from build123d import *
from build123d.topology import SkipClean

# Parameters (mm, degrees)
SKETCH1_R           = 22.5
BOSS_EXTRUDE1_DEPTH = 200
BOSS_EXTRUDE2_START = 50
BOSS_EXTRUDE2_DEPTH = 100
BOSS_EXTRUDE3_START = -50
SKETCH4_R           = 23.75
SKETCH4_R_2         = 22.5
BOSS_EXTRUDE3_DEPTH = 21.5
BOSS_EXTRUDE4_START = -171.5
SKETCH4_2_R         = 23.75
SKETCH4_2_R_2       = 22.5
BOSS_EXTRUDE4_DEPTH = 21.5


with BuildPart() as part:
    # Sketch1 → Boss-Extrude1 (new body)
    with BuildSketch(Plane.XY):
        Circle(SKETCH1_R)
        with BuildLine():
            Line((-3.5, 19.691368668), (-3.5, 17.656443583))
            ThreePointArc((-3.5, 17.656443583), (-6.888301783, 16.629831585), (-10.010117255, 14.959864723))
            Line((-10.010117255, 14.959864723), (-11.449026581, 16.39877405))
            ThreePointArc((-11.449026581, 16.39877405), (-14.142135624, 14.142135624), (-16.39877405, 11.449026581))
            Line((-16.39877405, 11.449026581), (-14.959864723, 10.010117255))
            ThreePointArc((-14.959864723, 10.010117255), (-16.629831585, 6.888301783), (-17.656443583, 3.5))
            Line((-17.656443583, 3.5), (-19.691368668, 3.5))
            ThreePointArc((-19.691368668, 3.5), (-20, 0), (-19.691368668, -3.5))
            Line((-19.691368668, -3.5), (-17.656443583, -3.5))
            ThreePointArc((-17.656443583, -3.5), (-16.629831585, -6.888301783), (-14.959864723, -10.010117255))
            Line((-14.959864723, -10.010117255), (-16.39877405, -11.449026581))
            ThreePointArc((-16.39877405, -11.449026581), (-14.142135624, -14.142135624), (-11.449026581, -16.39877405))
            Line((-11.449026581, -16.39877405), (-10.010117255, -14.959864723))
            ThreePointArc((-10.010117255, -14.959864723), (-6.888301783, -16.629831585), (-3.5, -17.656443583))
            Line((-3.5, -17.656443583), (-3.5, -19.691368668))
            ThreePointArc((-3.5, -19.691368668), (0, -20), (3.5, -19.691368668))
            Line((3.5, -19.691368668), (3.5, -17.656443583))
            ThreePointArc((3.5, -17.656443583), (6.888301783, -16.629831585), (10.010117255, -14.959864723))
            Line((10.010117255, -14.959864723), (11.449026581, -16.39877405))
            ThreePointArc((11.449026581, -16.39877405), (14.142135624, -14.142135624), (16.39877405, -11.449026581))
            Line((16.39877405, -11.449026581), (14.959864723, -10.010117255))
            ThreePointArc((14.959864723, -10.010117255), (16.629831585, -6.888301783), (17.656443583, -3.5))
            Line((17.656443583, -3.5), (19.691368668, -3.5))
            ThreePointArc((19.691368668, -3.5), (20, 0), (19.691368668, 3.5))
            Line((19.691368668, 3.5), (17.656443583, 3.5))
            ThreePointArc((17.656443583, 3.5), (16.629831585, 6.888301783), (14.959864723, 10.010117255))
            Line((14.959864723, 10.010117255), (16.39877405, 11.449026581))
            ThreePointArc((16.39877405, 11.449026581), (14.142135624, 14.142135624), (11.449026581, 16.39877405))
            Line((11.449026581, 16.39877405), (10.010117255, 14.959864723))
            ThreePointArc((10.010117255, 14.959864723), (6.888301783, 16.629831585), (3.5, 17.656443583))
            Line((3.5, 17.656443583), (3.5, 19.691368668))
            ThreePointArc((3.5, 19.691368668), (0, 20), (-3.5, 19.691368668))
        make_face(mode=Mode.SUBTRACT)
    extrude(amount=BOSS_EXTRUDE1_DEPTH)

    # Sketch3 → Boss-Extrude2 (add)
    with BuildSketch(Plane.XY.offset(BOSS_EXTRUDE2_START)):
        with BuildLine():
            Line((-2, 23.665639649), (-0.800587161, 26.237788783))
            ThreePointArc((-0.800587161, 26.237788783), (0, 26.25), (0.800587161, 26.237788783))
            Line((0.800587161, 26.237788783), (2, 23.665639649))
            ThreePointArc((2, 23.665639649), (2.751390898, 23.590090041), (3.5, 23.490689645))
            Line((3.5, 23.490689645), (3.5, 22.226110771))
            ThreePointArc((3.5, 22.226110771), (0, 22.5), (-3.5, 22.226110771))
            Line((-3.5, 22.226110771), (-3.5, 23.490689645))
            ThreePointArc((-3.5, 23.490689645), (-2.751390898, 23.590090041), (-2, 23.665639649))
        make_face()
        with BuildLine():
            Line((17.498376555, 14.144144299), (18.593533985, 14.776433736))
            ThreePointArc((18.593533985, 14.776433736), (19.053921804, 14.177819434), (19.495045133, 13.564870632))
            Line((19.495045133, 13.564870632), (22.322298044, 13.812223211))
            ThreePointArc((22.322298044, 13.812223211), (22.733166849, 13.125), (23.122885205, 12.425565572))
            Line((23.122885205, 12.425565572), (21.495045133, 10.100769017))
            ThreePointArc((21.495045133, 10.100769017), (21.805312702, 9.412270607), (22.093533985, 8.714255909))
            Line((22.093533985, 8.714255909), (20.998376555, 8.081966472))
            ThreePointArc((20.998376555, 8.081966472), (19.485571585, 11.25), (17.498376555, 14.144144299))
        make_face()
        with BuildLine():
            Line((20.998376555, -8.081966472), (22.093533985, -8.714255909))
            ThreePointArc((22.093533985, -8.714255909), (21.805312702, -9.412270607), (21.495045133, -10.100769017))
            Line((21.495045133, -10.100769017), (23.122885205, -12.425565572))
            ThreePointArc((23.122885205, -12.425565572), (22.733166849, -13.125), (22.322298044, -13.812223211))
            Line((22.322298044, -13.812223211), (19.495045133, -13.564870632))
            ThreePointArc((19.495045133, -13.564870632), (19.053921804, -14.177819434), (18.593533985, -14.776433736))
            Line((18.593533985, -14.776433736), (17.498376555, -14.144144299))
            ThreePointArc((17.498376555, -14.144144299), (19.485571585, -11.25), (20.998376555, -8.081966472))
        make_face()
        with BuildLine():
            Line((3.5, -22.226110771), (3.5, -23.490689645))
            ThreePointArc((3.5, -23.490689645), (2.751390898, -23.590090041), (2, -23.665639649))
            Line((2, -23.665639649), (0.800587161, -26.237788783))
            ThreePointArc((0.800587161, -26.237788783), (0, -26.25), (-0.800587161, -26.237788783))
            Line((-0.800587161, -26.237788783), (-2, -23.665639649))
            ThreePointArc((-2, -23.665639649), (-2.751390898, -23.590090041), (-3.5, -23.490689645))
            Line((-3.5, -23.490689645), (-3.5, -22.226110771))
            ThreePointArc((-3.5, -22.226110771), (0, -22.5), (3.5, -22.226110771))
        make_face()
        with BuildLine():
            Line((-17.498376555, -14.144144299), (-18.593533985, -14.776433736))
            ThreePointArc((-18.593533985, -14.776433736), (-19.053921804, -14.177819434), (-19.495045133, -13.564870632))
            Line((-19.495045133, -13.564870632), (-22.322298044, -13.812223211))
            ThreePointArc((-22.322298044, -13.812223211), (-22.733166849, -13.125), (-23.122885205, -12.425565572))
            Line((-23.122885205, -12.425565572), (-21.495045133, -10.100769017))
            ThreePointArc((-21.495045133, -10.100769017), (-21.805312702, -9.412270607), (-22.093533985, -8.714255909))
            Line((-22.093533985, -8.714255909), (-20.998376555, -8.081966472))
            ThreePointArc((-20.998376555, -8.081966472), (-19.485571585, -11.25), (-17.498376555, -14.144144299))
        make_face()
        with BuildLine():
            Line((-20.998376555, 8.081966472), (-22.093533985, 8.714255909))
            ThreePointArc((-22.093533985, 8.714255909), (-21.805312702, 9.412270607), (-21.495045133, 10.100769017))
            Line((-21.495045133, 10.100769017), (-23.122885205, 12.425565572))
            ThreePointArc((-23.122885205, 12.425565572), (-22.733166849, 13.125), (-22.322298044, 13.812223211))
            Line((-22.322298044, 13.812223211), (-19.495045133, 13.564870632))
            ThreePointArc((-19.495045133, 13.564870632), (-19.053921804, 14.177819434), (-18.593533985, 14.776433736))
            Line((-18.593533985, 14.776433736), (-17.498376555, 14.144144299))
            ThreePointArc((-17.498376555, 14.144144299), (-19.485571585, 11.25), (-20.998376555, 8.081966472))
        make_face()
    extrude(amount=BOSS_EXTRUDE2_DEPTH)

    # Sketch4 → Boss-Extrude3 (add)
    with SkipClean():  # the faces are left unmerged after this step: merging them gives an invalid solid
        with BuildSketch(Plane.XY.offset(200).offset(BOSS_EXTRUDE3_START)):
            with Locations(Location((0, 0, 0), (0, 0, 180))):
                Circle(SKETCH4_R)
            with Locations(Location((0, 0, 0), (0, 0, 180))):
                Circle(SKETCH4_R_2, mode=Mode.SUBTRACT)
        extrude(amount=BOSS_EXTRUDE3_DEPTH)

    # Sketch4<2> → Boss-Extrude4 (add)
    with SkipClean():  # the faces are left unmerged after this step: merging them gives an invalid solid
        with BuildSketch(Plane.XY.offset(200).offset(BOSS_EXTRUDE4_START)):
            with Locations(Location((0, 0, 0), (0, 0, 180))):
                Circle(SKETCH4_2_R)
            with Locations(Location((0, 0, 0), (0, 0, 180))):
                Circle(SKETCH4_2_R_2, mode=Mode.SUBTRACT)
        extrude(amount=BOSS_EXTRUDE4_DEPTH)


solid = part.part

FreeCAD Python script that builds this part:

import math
import FreeCAD as App
import Part
import Sketcher
Q = App.Units.Quantity

doc = App.newDocument("Part")
params = doc.addObject("Spreadsheet::Sheet", "Params")
for row, (alias, value) in enumerate([
    ("sketch1_diameter", "45 mm"),
    ("sketch1_radius", "20 mm"),
    ("sketch1_radius2", "18 mm"),
    ("pad1_length", "200 mm"),
    ("sketch2_radius", "22.5 mm"),
    ("sketch2_radius2", "23.749999 mm"),
    ("sketch2_radius3", "26.250001 mm"),
    ("pad2_length", "100 mm"),
    ("sketch3_diameter", "45 mm"),
    ("sketch3_diameter2", "47.5 mm"),
    ("pad3_length", "21.5 mm"),
    ("sketch4_diameter", "45 mm"),
    ("sketch4_diameter2", "47.5 mm"),
    ("pad4_length", "21.5 mm"),
], start=1):
    params.set(f"A{row}", alias)
    params.set(f"B{row}", "=" + value)
    params.setAlias(f"B{row}", alias)

body = doc.addObject("PartDesign::Body", "Body")

# Sketch on XY plane
sketch1 = body.newObject("Sketcher::SketchObject", "Sketch")
sketch1.AttachmentSupport = (doc.getObject("XY_Plane"), [""])
sketch1.MapMode = "FlatFace"
sketch1.addGeometry([
    Part.Circle(App.Vector(0, 0, 0), App.Vector(0, 0, 1), 22.5),  # 0
    Part.LineSegment(App.Vector(-3.5, 17.656444, 0), App.Vector(-3.5, 19.691369, 0)),  # 1
    Part.ArcOfCircle(Part.Circle(App.Vector(0, 0, 0), App.Vector(0, 0, 1), 20), math.radians(79.921342), math.radians(100.078658)),  # 2
    Part.LineSegment(App.Vector(3.5, 19.691369, 0), App.Vector(3.5, 17.656444, 0)),  # 3
    Part.ArcOfCircle(Part.Circle(App.Vector(0, 0, 0), App.Vector(0, 0, 1), 18), math.radians(56.212271), math.radians(78.787729)),  # 4
    Part.LineSegment(App.Vector(10.010117, 14.959865, 0), App.Vector(11.449027, 16.398774, 0)),  # 5
    Part.ArcOfCircle(Part.Circle(App.Vector(0, 0, 0), App.Vector(0, 0, 1), 20), math.radians(34.921342), math.radians(55.078658)),  # 6
    Part.LineSegment(App.Vector(16.398774, 11.449027, 0), App.Vector(14.959865, 10.010117, 0)),  # 7
    Part.ArcOfCircle(Part.Circle(App.Vector(0, 0, 0), App.Vector(0, 0, 1), 18), math.radians(11.212271), math.radians(33.787729)),  # 8
    Part.LineSegment(App.Vector(17.656444, 3.5, 0), App.Vector(19.691369, 3.5, 0)),  # 9
    Part.ArcOfCircle(Part.Circle(App.Vector(0, 0, 0), App.Vector(0, 0, 1), 20), math.radians(-10.078658), math.radians(10.078658)),  # 10
    Part.LineSegment(App.Vector(19.691369, -3.5, 0), App.Vector(17.656444, -3.5, 0)),  # 11
    Part.ArcOfCircle(Part.Circle(App.Vector(0, 0, 0), App.Vector(0, 0, 1), 18), math.radians(-33.787729), math.radians(-11.212271)),  # 12
    Part.LineSegment(App.Vector(14.959865, -10.010117, 0), App.Vector(16.398774, -11.449027, 0)),  # 13
    Part.ArcOfCircle(Part.Circle(App.Vector(0, 0, 0), App.Vector(0, 0, 1), 20), math.radians(-55.078658), math.radians(-34.921342)),  # 14
    Part.LineSegment(App.Vector(11.449027, -16.398774, 0), App.Vector(10.010117, -14.959865, 0)),  # 15
    Part.ArcOfCircle(Part.Circle(App.Vector(0, 0, 0), App.Vector(0, 0, 1), 18), math.radians(-78.787729), math.radians(-56.212271)),  # 16
    Part.LineSegment(App.Vector(3.5, -17.656444, 0), App.Vector(3.5, -19.691369, 0)),  # 17
    Part.ArcOfCircle(Part.Circle(App.Vector(0, 0, 0), App.Vector(0, 0, 1), 20), math.radians(-100.078658), math.radians(-79.921342)),  # 18
    Part.LineSegment(App.Vector(-3.5, -19.691369, 0), App.Vector(-3.5, -17.656444, 0)),  # 19
    Part.ArcOfCircle(Part.Circle(App.Vector(0, 0, 0), App.Vector(0, 0, 1), 18), math.radians(-123.787729), math.radians(-101.212271)),  # 20
    Part.LineSegment(App.Vector(-10.010117, -14.959865, 0), App.Vector(-11.449027, -16.398774, 0)),  # 21
    Part.ArcOfCircle(Part.Circle(App.Vector(0, 0, 0), App.Vector(0, 0, 1), 20), math.radians(-145.078658), math.radians(-124.921342)),  # 22
    Part.LineSegment(App.Vector(-16.398774, -11.449027, 0), App.Vector(-14.959865, -10.010117, 0)),  # 23
    Part.ArcOfCircle(Part.Circle(App.Vector(0, 0, 0), App.Vector(0, 0, 1), 18), math.radians(-168.787729), math.radians(-146.212271)),  # 24
    Part.LineSegment(App.Vector(-17.656444, -3.5, 0), App.Vector(-19.691369, -3.5, 0)),  # 25
    Part.ArcOfCircle(Part.Circle(App.Vector(0, 0, 0), App.Vector(0, 0, 1), 20), math.radians(169.921342), math.radians(190.078658)),  # 26
    Part.LineSegment(App.Vector(-19.691369, 3.5, 0), App.Vector(-17.656444, 3.5, 0)),  # 27
    Part.ArcOfCircle(Part.Circle(App.Vector(0, 0, 0), App.Vector(0, 0, 1), 18), math.radians(146.212271), math.radians(168.787729)),  # 28
    Part.LineSegment(App.Vector(-14.959865, 10.010117, 0), App.Vector(-16.398774, 11.449027, 0)),  # 29
    Part.ArcOfCircle(Part.Circle(App.Vector(0, 0, 0), App.Vector(0, 0, 1), 20), math.radians(124.921342), math.radians(145.078658)),  # 30
    Part.LineSegment(App.Vector(-11.449027, 16.398774, 0), App.Vector(-10.010117, 14.959865, 0)),  # 31
    Part.ArcOfCircle(Part.Circle(App.Vector(0, 0, 0), App.Vector(0, 0, 1), 18), math.radians(101.212271), math.radians(123.787729)),  # 32
], False)
sketch1.addConstraint([
    Sketcher.Constraint("Coincident", 1, 2, 2, 2),
    Sketcher.Constraint("Coincident", 2, 1, 3, 1),
    Sketcher.Constraint("Coincident", 3, 2, 4, 2),
    Sketcher.Constraint("Coincident", 4, 1, 5, 1),
    Sketcher.Constraint("Coincident", 5, 2, 6, 2),
    Sketcher.Constraint("Coincident", 6, 1, 7, 1),
    Sketcher.Constraint("Coincident", 7, 2, 8, 2),
    Sketcher.Constraint("Coincident", 8, 1, 9, 1),
    Sketcher.Constraint("Coincident", 9, 2, 10, 2),
    Sketcher.Constraint("Coincident", 10, 1, 11, 1),
    Sketcher.Constraint("Coincident", 11, 2, 12, 2),
    Sketcher.Constraint("Coincident", 12, 1, 13, 1),
    Sketcher.Constraint("Coincident", 13, 2, 14, 2),
    Sketcher.Constraint("Coincident", 14, 1, 15, 1),
    Sketcher.Constraint("Coincident", 15, 2, 16, 2),
    Sketcher.Constraint("Coincident", 16, 1, 17, 1),
    Sketcher.Constraint("Coincident", 17, 2, 18, 2),
    Sketcher.Constraint("Coincident", 18, 1, 19, 1),
    Sketcher.Constraint("Coincident", 19, 2, 20, 2),
    Sketcher.Constraint("Coincident", 20, 1, 21, 1),
    Sketcher.Constraint("Coincident", 21, 2, 22, 2),
    Sketcher.Constraint("Coincident", 22, 1, 23, 1),
    Sketcher.Constraint("Coincident", 23, 2, 24, 2),
    Sketcher.Constraint("Coincident", 24, 1, 25, 1),
    Sketcher.Constraint("Coincident", 25, 2, 26, 2),
    Sketcher.Constraint("Coincident", 26, 1, 27, 1),
    Sketcher.Constraint("Coincident", 27, 2, 28, 2),
    Sketcher.Constraint("Coincident", 28, 1, 29, 1),
    Sketcher.Constraint("Coincident", 29, 2, 30, 2),
    Sketcher.Constraint("Coincident", 30, 1, 31, 1),
    Sketcher.Constraint("Coincident", 31, 2, 32, 2),
    Sketcher.Constraint("Coincident", 32, 1, 1, 1),
    Sketcher.Constraint("Vertical", 1),
    Sketcher.Constraint("Vertical", 3),
    Sketcher.Constraint("Horizontal", 9),
    Sketcher.Constraint("Horizontal", 11),
    Sketcher.Constraint("Vertical", 17),
    Sketcher.Constraint("Vertical", 19),
    Sketcher.Constraint("Horizontal", 25),
    Sketcher.Constraint("Horizontal", 27),
    Sketcher.Constraint("Coincident", 0, 3, -1, 1),
    Sketcher.Constraint("Coincident", 2, 3, -1, 1),
    Sketcher.Constraint("Coincident", 4, 3, -1, 1),
    Sketcher.Constraint("Coincident", 6, 3, -1, 1),
    Sketcher.Constraint("Coincident", 8, 3, -1, 1),
    Sketcher.Constraint("Coincident", 10, 3, -1, 1),
    Sketcher.Constraint("Coincident", 12, 3, -1, 1),
    Sketcher.Constraint("Coincident", 14, 3, -1, 1),
    Sketcher.Constraint("Coincident", 16, 3, -1, 1),
    Sketcher.Constraint("Coincident", 18, 3, -1, 1),
    Sketcher.Constraint("Coincident", 20, 3, -1, 1),
    Sketcher.Constraint("Coincident", 22, 3, -1, 1),
    Sketcher.Constraint("Coincident", 24, 3, -1, 1),
    Sketcher.Constraint("Coincident", 26, 3, -1, 1),
    Sketcher.Constraint("Coincident", 28, 3, -1, 1),
    Sketcher.Constraint("Coincident", 30, 3, -1, 1),
    Sketcher.Constraint("Coincident", 32, 3, -1, 1),
    Sketcher.Constraint("Equal", 2, 6),
    Sketcher.Constraint("Equal", 4, 8),
    Sketcher.Constraint("Equal", 6, 10),
    Sketcher.Constraint("Equal", 8, 12),
    Sketcher.Constraint("Equal", 10, 14),
    Sketcher.Constraint("Equal", 12, 16),
    Sketcher.Constraint("Equal", 14, 18),
    Sketcher.Constraint("Equal", 16, 20),
    Sketcher.Constraint("Equal", 18, 22),
    Sketcher.Constraint("Equal", 20, 24),
    Sketcher.Constraint("Equal", 22, 26),
    Sketcher.Constraint("Equal", 24, 28),
    Sketcher.Constraint("Equal", 26, 30),
    Sketcher.Constraint("Equal", 28, 32),
    Sketcher.Constraint("Parallel", 5, 7),
    Sketcher.Constraint("Perpendicular", 7, 13),
    Sketcher.Constraint("Parallel", 13, 15),
    Sketcher.Constraint("Perpendicular", 15, 21),
    Sketcher.Constraint("Parallel", 21, 23),
    Sketcher.Constraint("Perpendicular", 23, 29),
    Sketcher.Constraint("Parallel", 29, 31),
    Sketcher.Constraint("Horizontal", 1, 2, 2, 1),
    Sketcher.Constraint("Horizontal", 17, 2, 18, 1),
    Sketcher.Constraint("Horizontal", 15, 2, 20, 1),
    Sketcher.Constraint("Horizontal", 14, 1, 21, 2),
    Sketcher.Constraint("Horizontal", 13, 2, 22, 1),
    Sketcher.Constraint("Horizontal", 11, 2, 24, 1),
    Sketcher.Constraint("Horizontal", 9, 2, 26, 1),
    Sketcher.Constraint("Horizontal", 7, 2, 28, 1),
    Sketcher.Constraint("Horizontal", 5, 2, 30, 1),
    Sketcher.Constraint("Vertical", 9, 2, 10, 1),
    Sketcher.Constraint("Vertical", 7, 2, 12, 1),
    Sketcher.Constraint("Vertical", 5, 2, 14, 1),
    Sketcher.Constraint("Vertical", 3, 2, 16, 1),
    Sketcher.Constraint("Equal", 27, 1),
    Sketcher.Constraint("Equal", 5, 7),
    Sketcher.Constraint("Diameter", 0, 45.0),
    Sketcher.Constraint("Radius", 2, 20.0),
    Sketcher.Constraint("Radius", 4, 18.0),
    Sketcher.Constraint("DistanceX", 1, 2, 2, 1, 7.0),
    Sketcher.Constraint("DistanceY", 4, 1, 3, 2, 2.696579),
])
sketch1.setExpression("Constraints[93]", "Params.sketch1_diameter")
sketch1.setExpression("Constraints[94]", "Params.sketch1_radius")
sketch1.setExpression("Constraints[95]", "Params.sketch1_radius2")
pad1 = body.newObject("PartDesign::Pad", "Pad")
pad1.Profile = sketch1
pad1.setExpression("Length", "Params.pad1_length")

# Sketch on XY plane
sketch2 = body.newObject("Sketcher::SketchObject", "Sketch001")
sketch2.AttachmentSupport = (doc.getObject("XY_Plane"), [""])
sketch2.MapMode = "FlatFace"
sketch2.AttachmentOffset = App.Placement(App.Vector(0, 0, 50), App.Rotation())
sketch2.addGeometry([
    Part.LineSegment(App.Vector(-0.800587, 26.237789, 0), App.Vector(-2, 23.66564, 0)),  # 0
    Part.ArcOfCircle(Part.Circle(App.Vector(0, 0.000001, 0), App.Vector(0, 0, 1), 23.749999), math.radians(94.830629), math.radians(98.474453)),  # 1
    Part.LineSegment(App.Vector(-3.5, 23.49069, 0), App.Vector(-3.5, 22.226111, 0)),  # 2
    Part.ArcOfCircle(Part.Circle(App.Vector(0, 0, 0), App.Vector(0, 0, 1), 22.5), math.radians(81.050982), math.radians(98.949018)),  # 3
    Part.LineSegment(App.Vector(3.5, 22.226111, 0), App.Vector(3.5, 23.49069, 0)),  # 4
    Part.ArcOfCircle(Part.Circle(App.Vector(0, 0.000001, 0), App.Vector(0, 0, 1), 23.749999), math.radians(81.525547), math.radians(85.169371)),  # 5
    Part.LineSegment(App.Vector(2, 23.66564, 0), App.Vector(0.800587, 26.237789, 0)),  # 6
    Part.ArcOfCircle(Part.Circle(App.Vector(0, -0.000001, 0), App.Vector(0, 0, 1), 26.250001), math.radians(88.25229), math.radians(91.74771)),  # 7
    Part.LineSegment(App.Vector(18.593534, 14.776434, 0), App.Vector(17.498377, 14.144144, 0)),  # 8
    Part.ArcOfCircle(Part.Circle(App.Vector(0, 0, 0), App.Vector(0, 0, 1), 22.5), math.radians(21.050982), math.radians(38.949018)),  # 9
    Part.LineSegment(App.Vector(20.998377, 8.081966, 0), App.Vector(22.093534, 8.714256, 0)),  # 10
    Part.ArcOfCircle(Part.Circle(App.Vector(0, 0, 0), App.Vector(0, 0, 1), 23.749999), math.radians(21.525547), math.radians(25.169371)),  # 11
    Part.LineSegment(App.Vector(21.495045, 10.100769, 0), App.Vector(23.122885, 12.425566, 0)),  # 12
    Part.ArcOfCircle(Part.Circle(App.Vector(0, 0, 0), App.Vector(0, 0, 1), 26.25), math.radians(28.25229), math.radians(31.74771)),  # 13
    Part.LineSegment(App.Vector(22.322298, 13.812223, 0), App.Vector(19.495045, 13.564871, 0)),  # 14
    Part.ArcOfCircle(Part.Circle(App.Vector(0, 0, 0), App.Vector(0, 0, 1), 23.749999), math.radians(34.830629), math.radians(38.474453)),  # 15
    Part.LineSegment(App.Vector(22.093534, -8.714256, 0), App.Vector(20.998377, -8.081966, 0)),  # 16
    Part.ArcOfCircle(Part.Circle(App.Vector(0, 0, 0), App.Vector(0, 0, 1), 22.5), math.radians(-38.949018), math.radians(-21.050982)),  # 17
    Part.LineSegment(App.Vector(17.498377, -14.144144, 0), App.Vector(18.593534, -14.776434, 0)),  # 18
    Part.ArcOfCircle(Part.Circle(App.Vector(0, 0, 0), App.Vector(0, 0, 1), 23.749999), math.radians(-38.474453), math.radians(-34.830629)),  # 19
    Part.LineSegment(App.Vector(19.495045, -13.564871, 0), App.Vector(22.322298, -13.812223, 0)),  # 20
    Part.ArcOfCircle(Part.Circle(App.Vector(0, 0, 0), App.Vector(0, 0, 1), 26.25), math.radians(-31.74771), math.radians(-28.25229)),  # 21
    Part.LineSegment(App.Vector(23.122885, -12.425566, 0), App.Vector(21.495045, -10.100769, 0)),  # 22
    Part.ArcOfCircle(Part.Circle(App.Vector(0, 0, 0), App.Vector(0, 0, 1), 23.749999), math.radians(-25.169371), math.radians(-21.525547)),  # 23
    Part.LineSegment(App.Vector(3.5, -23.49069, 0), App.Vector(3.5, -22.226111, 0)),  # 24
    Part.ArcOfCircle(Part.Circle(App.Vector(0, 0, 0), App.Vector(0, 0, 1), 22.5), math.radians(-98.949018), math.radians(-81.050982)),  # 25
    Part.LineSegment(App.Vector(-3.5, -22.226111, 0), App.Vector(-3.5, -23.49069, 0)),  # 26
    Part.ArcOfCircle(Part.Circle(App.Vector(0, -0.000001, 0), App.Vector(0, 0, 1), 23.749999), math.radians(-98.474453), math.radians(-94.830629)),  # 27
    Part.LineSegment(App.Vector(-2, -23.66564, 0), App.Vector(-0.800587, -26.237789, 0)),  # 28
    Part.ArcOfCircle(Part.Circle(App.Vector(0, 0.000001, 0), App.Vector(0, 0, 1), 26.250001), math.radians(-91.74771), math.radians(-88.25229)),  # 29
    Part.LineSegment(App.Vector(0.800587, -26.237789, 0), App.Vector(2, -23.66564, 0)),  # 30
    Part.ArcOfCircle(Part.Circle(App.Vector(0, -0.000001, 0), App.Vector(0, 0, 1), 23.749999), math.radians(-85.169371), math.radians(-81.525547)),  # 31
    Part.LineSegment(App.Vector(-18.593534, -14.776434, 0), App.Vector(-17.498377, -14.144144, 0)),  # 32
    Part.ArcOfCircle(Part.Circle(App.Vector(0, 0, 0), App.Vector(0, 0, 1), 22.5), math.radians(-158.949018), math.radians(-141.050982)),  # 33
    Part.LineSegment(App.Vector(-20.998377, -8.081966, 0), App.Vector(-22.093534, -8.714256, 0)),  # 34
    Part.ArcOfCircle(Part.Circle(App.Vector(0, 0, 0), App.Vector(0, 0, 1), 23.749999), math.radians(-158.474453), math.radians(-154.830629)),  # 35
    Part.LineSegment(App.Vector(-21.495045, -10.100769, 0), App.Vector(-23.122885, -12.425566, 0)),  # 36
    Part.ArcOfCircle(Part.Circle(App.Vector(0, 0, 0), App.Vector(0, 0, 1), 26.25), math.radians(-151.74771), math.radians(-148.25229)),  # 37
    Part.LineSegment(App.Vector(-22.322298, -13.812223, 0), App.Vector(-19.495045, -13.564871, 0)),  # 38
    Part.ArcOfCircle(Part.Circle(App.Vector(0, 0, 0), App.Vector(0, 0, 1), 23.749999), math.radians(-145.169371), math.radians(-141.525547)),  # 39
    Part.LineSegment(App.Vector(-22.093534, 8.714256, 0), App.Vector(-20.998377, 8.081966, 0)),  # 40
    Part.ArcOfCircle(Part.Circle(App.Vector(0, 0, 0), App.Vector(0, 0, 1), 22.5), math.radians(141.050982), math.radians(158.949018)),  # 41
    Part.LineSegment(App.Vector(-17.498377, 14.144144, 0), App.Vector(-18.593534, 14.776434, 0)),  # 42
    Part.ArcOfCircle(Part.Circle(App.Vector(0, 0, 0), App.Vector(0, 0, 1), 23.749999), math.radians(141.525547), math.radians(145.169371)),  # 43
    Part.LineSegment(App.Vector(-19.495045, 13.564871, 0), App.Vector(-22.322298, 13.812223, 0)),  # 44
    Part.ArcOfCircle(Part.Circle(App.Vector(0, 0, 0), App.Vector(0, 0, 1), 26.25), math.radians(148.25229), math.radians(151.74771)),  # 45
    Part.LineSegment(App.Vector(-23.122885, 12.425566, 0), App.Vector(-21.495045, 10.100769, 0)),  # 46
    Part.ArcOfCircle(Part.Circle(App.Vector(0, 0, 0), App.Vector(0, 0, 1), 23.749999), math.radians(154.830629), math.radians(158.474453)),  # 47
], False)
sketch2.addConstraint([
    Sketcher.Constraint("Coincident", 0, 2, 1, 1),
    Sketcher.Constraint("Coincident", 1, 2, 2, 1),
    Sketcher.Constraint("Coincident", 2, 2, 3, 2),
    Sketcher.Constraint("Coincident", 3, 1, 4, 1),
    Sketcher.Constraint("Coincident", 4, 2, 5, 1),
    Sketcher.Constraint("Coincident", 5, 2, 6, 1),
    Sketcher.Constraint("Coincident", 6, 2, 7, 1),
    Sketcher.Constraint("Coincident", 7, 2, 0, 1),
    Sketcher.Constraint("Coincident", 8, 2, 9, 2),
    Sketcher.Constraint("Coincident", 9, 1, 10, 1),
    Sketcher.Constraint("Coincident", 10, 2, 11, 1),
    Sketcher.Constraint("Coincident", 11, 2, 12, 1),
    Sketcher.Constraint("Coincident", 12, 2, 13, 1),
    Sketcher.Constraint("Coincident", 13, 2, 14, 1),
    Sketcher.Constraint("Coincident", 14, 2, 15, 1),
    Sketcher.Constraint("Coincident", 15, 2, 8, 1),
    Sketcher.Constraint("Coincident", 16, 2, 17, 2),
    Sketcher.Constraint("Coincident", 17, 1, 18, 1),
    Sketcher.Constraint("Coincident", 18, 2, 19, 1),
    Sketcher.Constraint("Coincident", 19, 2, 20, 1),
    Sketcher.Constraint("Coincident", 20, 2, 21, 1),
    Sketcher.Constraint("Coincident", 21, 2, 22, 1),
    Sketcher.Constraint("Coincident", 22, 2, 23, 1),
    Sketcher.Constraint("Coincident", 23, 2, 16, 1),
    Sketcher.Constraint("Coincident", 24, 2, 25, 2),
    Sketcher.Constraint("Coincident", 25, 1, 26, 1),
    Sketcher.Constraint("Coincident", 26, 2, 27, 1),
    Sketcher.Constraint("Coincident", 27, 2, 28, 1),
    Sketcher.Constraint("Coincident", 28, 2, 29, 1),
    Sketcher.Constraint("Coincident", 29, 2, 30, 1),
    Sketcher.Constraint("Coincident", 30, 2, 31, 1),
    Sketcher.Constraint("Coincident", 31, 2, 24, 1),
    Sketcher.Constraint("Coincident", 32, 2, 33, 2),
    Sketcher.Constraint("Coincident", 33, 1, 34, 1),
    Sketcher.Constraint("Coincident", 34, 2, 35, 1),
    Sketcher.Constraint("Coincident", 35, 2, 36, 1),
    Sketcher.Constraint("Coincident", 36, 2, 37, 1),
    Sketcher.Constraint("Coincident", 37, 2, 38, 1),
    Sketcher.Constraint("Coincident", 38, 2, 39, 1),
    Sketcher.Constraint("Coincident", 39, 2, 32, 1),
    Sketcher.Constraint("Coincident", 40, 2, 41, 2),
    Sketcher.Constraint("Coincident", 41, 1, 42, 1),
    Sketcher.Constraint("Coincident", 42, 2, 43, 1),
    Sketcher.Constraint("Coincident", 43, 2, 44, 1),
    Sketcher.Constraint("Coincident", 44, 2, 45, 1),
    Sketcher.Constraint("Coincident", 45, 2, 46, 1),
    Sketcher.Constraint("Coincident", 46, 2, 47, 1),
    Sketcher.Constraint("Coincident", 47, 2, 40, 1),
    Sketcher.Constraint("Vertical", 2),
    Sketcher.Constraint("Vertical", 4),
    Sketcher.Constraint("Vertical", 24),
    Sketcher.Constraint("Vertical", 26),
    Sketcher.Constraint("Coincident", 1, 3, -1, 1),
    Sketcher.Constraint("Coincident", 3, 3, -1, 1),
    Sketcher.Constraint("Coincident", 5, 3, -1, 1),
    Sketcher.Constraint("Coincident", 7, 3, -1, 1),
    Sketcher.Constraint("Coincident", 9, 3, -1, 1),
    Sketcher.Constraint("Coincident", 11, 3, -1, 1),
    Sketcher.Constraint("Coincident", 13, 3, -1, 1),
    Sketcher.Constraint("Coincident", 15, 3, -1, 1),
    Sketcher.Constraint("Coincident", 17, 3, -1, 1),
    Sketcher.Constraint("Coincident", 19, 3, -1, 1),
    Sketcher.Constraint("Coincident", 21, 3, -1, 1),
    Sketcher.Constraint("Coincident", 23, 3, -1, 1),
    Sketcher.Constraint("Coincident", 25, 3, -1, 1),
    Sketcher.Constraint("Coincident", 27, 3, -1, 1),
    Sketcher.Constraint("Coincident", 29, 3, -1, 1),
    Sketcher.Constraint("Coincident", 31, 3, -1, 1),
    Sketcher.Constraint("Coincident", 33, 3, -1, 1),
    Sketcher.Constraint("Coincident", 35, 3, -1, 1),
    Sketcher.Constraint("Coincident", 37, 3, -1, 1),
    Sketcher.Constraint("Coincident", 39, 3, -1, 1),
    Sketcher.Constraint("Coincident", 41, 3, -1, 1),
    Sketcher.Constraint("Coincident", 43, 3, -1, 1),
    Sketcher.Constraint("Coincident", 45, 3, -1, 1),
    Sketcher.Constraint("Coincident", 47, 3, -1, 1),
    Sketcher.Constraint("Equal", 1, 5),
    Sketcher.Constraint("Equal", 3, 9),
    Sketcher.Constraint("Equal", 5, 11),
    Sketcher.Constraint("Equal", 7, 13),
    Sketcher.Constraint("Equal", 11, 15),
    Sketcher.Constraint("Equal", 9, 17),
    Sketcher.Constraint("Equal", 15, 19),
    Sketcher.Constraint("Equal", 13, 21),
    Sketcher.Constraint("Equal", 19, 23),
    Sketcher.Constraint("Equal", 17, 25),
    Sketcher.Constraint("Equal", 23, 27),
    Sketcher.Constraint("Equal", 21, 29),
    Sketcher.Constraint("Equal", 27, 31),
    Sketcher.Constraint("Equal", 25, 33),
    Sketcher.Constraint("Equal", 31, 35),
    Sketcher.Constraint("Equal", 29, 37),
    Sketcher.Constraint("Equal", 35, 39),
    Sketcher.Constraint("Equal", 33, 41),
    Sketcher.Constraint("Equal", 39, 43),
    Sketcher.Constraint("Equal", 37, 45),
    Sketcher.Constraint("Equal", 43, 47),
    Sketcher.Constraint("Parallel", 8, 10),
    Sketcher.Constraint("Parallel", 16, 18),
    Sketcher.Constraint("Parallel", 6, 28),
    Sketcher.Constraint("Parallel", 0, 30),
    Sketcher.Constraint("Parallel", 10, 32),
    Sketcher.Constraint("Parallel", 32, 34),
    Sketcher.Constraint("Parallel", 12, 36),
    Sketcher.Constraint("Parallel", 14, 38),
    Sketcher.Constraint("Parallel", 18, 40),
    Sketcher.Constraint("Parallel", 40, 42),
    Sketcher.Constraint("Parallel", 20, 44),
    Sketcher.Constraint("Parallel", 22, 46),
    Sketcher.Constraint("Horizontal", 2, 2, 3, 1),
    Sketcher.Constraint("Horizontal", 0, 2, 5, 2),
    Sketcher.Constraint("Horizontal", 6, 2, 7, 2),
    Sketcher.Constraint("Horizontal", 24, 2, 25, 1),
    Sketcher.Constraint("Horizontal", 28, 2, 29, 2),
    Sketcher.Constraint("Horizontal", 17, 1, 32, 2),
    Sketcher.Constraint("Horizontal", 16, 2, 33, 1),
    Sketcher.Constraint("Horizontal", 23, 2, 34, 2),
    Sketcher.Constraint("Horizontal", 22, 2, 35, 2),
    Sketcher.Constraint("Horizontal", 21, 2, 36, 2),
    Sketcher.Constraint("Horizontal", 20, 2, 37, 2),
    Sketcher.Constraint("Horizontal", 19, 2, 38, 2),
    Sketcher.Constraint("Horizontal", 9, 1, 40, 2),
    Sketcher.Constraint("Horizontal", 8, 2, 41, 1),
    Sketcher.Constraint("Horizontal", 14, 2, 43, 2),
    Sketcher.Constraint("Horizontal", 12, 2, 45, 2),
    Sketcher.Constraint("Vertical", 9, 1, 16, 2),
    Sketcher.Constraint("Vertical", 8, 2, 17, 1),
    Sketcher.Constraint("Vertical", 14, 2, 19, 2),
    Sketcher.Constraint("Vertical", 12, 2, 21, 2),
    Sketcher.Constraint("Vertical", 4, 2, 24, 2),
    Sketcher.Constraint("Vertical", 0, 2, 27, 2),
    Sketcher.Constraint("Equal", 8, 10),
    Sketcher.Constraint("Equal", 6, 12),
    Sketcher.Constraint("Equal", 12, 14),
    Sketcher.Constraint("Radius", 3, 22.5),
    Sketcher.Constraint("Angle", 0, Q("-115 deg")),
    Sketcher.Constraint("Angle", 8, Q("-150 deg")),
    Sketcher.Constraint("Angle", 12, Q("55 deg")),
    Sketcher.Constraint("Angle", 14, Q("-175 deg")),
    Sketcher.Constraint("Radius", 1, 23.749999),
    Sketcher.Constraint("Radius", 7, 26.250001),
    Sketcher.Constraint("DistanceX", 0, 2, -1, 1, 2.0),
    Sketcher.Constraint("DistanceX", 1, 2, -1, 1, 3.5),
    Sketcher.Constraint("DistanceX", -1, 1, 8, 2, 17.498377),
])
sketch2.setExpression("Constraints[134]", "Params.sketch2_radius")
sketch2.setExpression("Constraints[139]", "Params.sketch2_radius2")
sketch2.setExpression("Constraints[140]", "Params.sketch2_radius3")
pad2 = body.newObject("PartDesign::Pad", "Pad001")
pad2.Profile = sketch2
pad2.setExpression("Length", "Params.pad2_length")

# Sketch on XY plane
sketch3 = body.newObject("Sketcher::SketchObject", "Sketch002")
sketch3.AttachmentSupport = (doc.getObject("XY_Plane"), [""])
sketch3.MapMode = "FlatFace"
sketch3.AttachmentOffset = App.Placement(App.Vector(0, 0, 150), App.Rotation())
sketch3.addGeometry([
    Part.Circle(App.Vector(0, 0, 0), App.Vector(0, 0, 1), 23.75),
    Part.Circle(App.Vector(0, 0, 0), App.Vector(0, 0, 1), 22.5),
], False)
sketch3.addConstraint([
    Sketcher.Constraint("Coincident", 0, 3, -1, 1),
    Sketcher.Constraint("Coincident", 1, 3, -1, 1),
    Sketcher.Constraint("Diameter", 1, 45.0),
    Sketcher.Constraint("Diameter", 0, 47.5),
])
sketch3.setExpression("Constraints[2]", "Params.sketch3_diameter")
sketch3.setExpression("Constraints[3]", "Params.sketch3_diameter2")
pad3 = body.newObject("PartDesign::Pad", "Pad002")
pad3.Profile = sketch3
pad3.setExpression("Length", "Params.pad3_length")

# Sketch on XY plane
sketch4 = body.newObject("Sketcher::SketchObject", "Sketch003")
sketch4.AttachmentSupport = (doc.getObject("XY_Plane"), [""])
sketch4.MapMode = "FlatFace"
sketch4.AttachmentOffset = App.Placement(App.Vector(0, 0, 28.5), App.Rotation())
sketch4.addGeometry([
    Part.Circle(App.Vector(0, 0, 0), App.Vector(0, 0, 1), 23.75),
    Part.Circle(App.Vector(0, 0, 0), App.Vector(0, 0, 1), 22.5),
], False)
sketch4.addConstraint([
    Sketcher.Constraint("Coincident", 0, 3, -1, 1),
    Sketcher.Constraint("Coincident", 1, 3, -1, 1),
    Sketcher.Constraint("Diameter", 1, 45.0),
    Sketcher.Constraint("Diameter", 0, 47.5),
])
sketch4.setExpression("Constraints[2]", "Params.sketch4_diameter")
sketch4.setExpression("Constraints[3]", "Params.sketch4_diameter2")
pad4 = body.newObject("PartDesign::Pad", "Pad003")
pad4.Profile = sketch4
pad4.setExpression("Length", "Params.pad4_length")

doc.recompute()
